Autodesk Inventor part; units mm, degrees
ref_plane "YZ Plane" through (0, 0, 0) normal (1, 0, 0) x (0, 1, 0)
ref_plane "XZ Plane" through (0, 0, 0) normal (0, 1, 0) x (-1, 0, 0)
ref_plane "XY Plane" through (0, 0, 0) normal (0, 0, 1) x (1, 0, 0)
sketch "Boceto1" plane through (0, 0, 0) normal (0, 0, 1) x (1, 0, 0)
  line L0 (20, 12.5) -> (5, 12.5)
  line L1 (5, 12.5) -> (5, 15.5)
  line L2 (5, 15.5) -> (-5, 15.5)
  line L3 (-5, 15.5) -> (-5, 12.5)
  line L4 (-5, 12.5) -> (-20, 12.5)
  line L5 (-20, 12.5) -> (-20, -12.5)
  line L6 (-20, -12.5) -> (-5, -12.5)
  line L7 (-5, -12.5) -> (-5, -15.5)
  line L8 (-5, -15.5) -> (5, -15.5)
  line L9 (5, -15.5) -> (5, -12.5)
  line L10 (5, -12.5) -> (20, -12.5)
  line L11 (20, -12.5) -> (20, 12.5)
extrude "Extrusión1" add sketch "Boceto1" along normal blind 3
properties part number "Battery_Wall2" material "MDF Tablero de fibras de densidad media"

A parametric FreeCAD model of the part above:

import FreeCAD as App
import Part
import Sketcher
Q = App.Units.Quantity

doc = App.newDocument("Part")
body = doc.addObject("PartDesign::Body", "Body")

# Sketch on XY plane
sketch1 = doc.addObject("Sketcher::SketchObject", "Sketch")
body.addObject(sketch1)
sketch1.AttachmentSupport = (doc.XY_Plane, [""])
sketch1.MapMode = "FlatFace"
sketch1.addGeometry([
    Part.LineSegment(App.Vector(20, -12.5, 0), App.Vector(20, 12.5, 0)),  # 0
    Part.LineSegment(App.Vector(20, 12.5, 0), App.Vector(5, 12.5, 0)),  # 1
    Part.LineSegment(App.Vector(5, 12.5, 0), App.Vector(5, 15.5, 0)),  # 2
    Part.LineSegment(App.Vector(5, 15.5, 0), App.Vector(-5, 15.5, 0)),  # 3
    Part.LineSegment(App.Vector(-5, 15.5, 0), App.Vector(-5, 12.5, 0)),  # 4
    Part.LineSegment(App.Vector(-5, 12.5, 0), App.Vector(-20, 12.5, 0)),  # 5
    Part.LineSegment(App.Vector(-20, 12.5, 0), App.Vector(-20, -12.5, 0)),  # 6
    Part.LineSegment(App.Vector(-20, -12.5, 0), App.Vector(-5, -12.5, 0)),  # 7
    Part.LineSegment(App.Vector(-5, -12.5, 0), App.Vector(-5, -15.5, 0)),  # 8
    Part.LineSegment(App.Vector(-5, -15.5, 0), App.Vector(5, -15.5, 0)),  # 9
    Part.LineSegment(App.Vector(5, -15.5, 0), App.Vector(5, -12.5, 0)),  # 10
    Part.LineSegment(App.Vector(5, -12.5, 0), App.Vector(20, -12.5, 0)),  # 11
], False)
sketch1.addConstraint([
    Sketcher.Constraint("Coincident", 0, 2, 1, 1),
    Sketcher.Constraint("Coincident", 1, 2, 2, 1),
    Sketcher.Constraint("Coincident", 2, 2, 3, 1),
    Sketcher.Constraint("Coincident", 3, 2, 4, 1),
    Sketcher.Constraint("Coincident", 4, 2, 5, 1),
    Sketcher.Constraint("Coincident", 5, 2, 6, 1),
    Sketcher.Constraint("Coincident", 6, 2, 7, 1),
    Sketcher.Constraint("Coincident", 7, 2, 8, 1),
    Sketcher.Constraint("Coincident", 8, 2, 9, 1),
    Sketcher.Constraint("Coincident", 9, 2, 10, 1),
    Sketcher.Constraint("Coincident", 10, 2, 11, 1),
    Sketcher.Constraint("Coincident", 11, 2, 0, 1),
    Sketcher.Constraint("Vertical", 0),
    Sketcher.Constraint("Horizontal", 1),
    Sketcher.Constraint("Vertical", 2),
    Sketcher.Constraint("Horizontal", 3),
    Sketcher.Constraint("Vertical", 4),
    Sketcher.Constraint("Horizontal", 5),
    Sketcher.Constraint("Vertical", 6),
    Sketcher.Constraint("Horizontal", 7),
    Sketcher.Constraint("Vertical", 8),
    Sketcher.Constraint("Horizontal", 9),
    Sketcher.Constraint("Vertical", 10),
    Sketcher.Constraint("Horizontal", 11),
    Sketcher.Constraint("Symmetric", 0, 2, 6, 2, -1, 1),
    Sketcher.Constraint("Symmetric", 2, 2, 8, 2, -1, 1),
    Sketcher.Constraint("Symmetric", 4, 2, 10, 2, -1, 1),
    Sketcher.Constraint("Symmetric", 1, 2, 4, 2, -2),
    Sketcher.Constraint("DistanceX", 1, 2, 1, 1, Q("15 mm")),
    Sketcher.Constraint("DistanceX", 3, 2, 3, 1, Q("10 mm")),
    Sketcher.Constraint("DistanceY", 0, 1, 0, 2, Q("25 mm")),
    Sketcher.Constraint("DistanceY", 2, 1, 2, 2, Q("3 mm")),
])
pad1 = doc.addObject("PartDesign::Pad", "Pad")
body.addObject(pad1)
pad1.Profile = sketch1
pad1.Length = 3

doc.recompute()
